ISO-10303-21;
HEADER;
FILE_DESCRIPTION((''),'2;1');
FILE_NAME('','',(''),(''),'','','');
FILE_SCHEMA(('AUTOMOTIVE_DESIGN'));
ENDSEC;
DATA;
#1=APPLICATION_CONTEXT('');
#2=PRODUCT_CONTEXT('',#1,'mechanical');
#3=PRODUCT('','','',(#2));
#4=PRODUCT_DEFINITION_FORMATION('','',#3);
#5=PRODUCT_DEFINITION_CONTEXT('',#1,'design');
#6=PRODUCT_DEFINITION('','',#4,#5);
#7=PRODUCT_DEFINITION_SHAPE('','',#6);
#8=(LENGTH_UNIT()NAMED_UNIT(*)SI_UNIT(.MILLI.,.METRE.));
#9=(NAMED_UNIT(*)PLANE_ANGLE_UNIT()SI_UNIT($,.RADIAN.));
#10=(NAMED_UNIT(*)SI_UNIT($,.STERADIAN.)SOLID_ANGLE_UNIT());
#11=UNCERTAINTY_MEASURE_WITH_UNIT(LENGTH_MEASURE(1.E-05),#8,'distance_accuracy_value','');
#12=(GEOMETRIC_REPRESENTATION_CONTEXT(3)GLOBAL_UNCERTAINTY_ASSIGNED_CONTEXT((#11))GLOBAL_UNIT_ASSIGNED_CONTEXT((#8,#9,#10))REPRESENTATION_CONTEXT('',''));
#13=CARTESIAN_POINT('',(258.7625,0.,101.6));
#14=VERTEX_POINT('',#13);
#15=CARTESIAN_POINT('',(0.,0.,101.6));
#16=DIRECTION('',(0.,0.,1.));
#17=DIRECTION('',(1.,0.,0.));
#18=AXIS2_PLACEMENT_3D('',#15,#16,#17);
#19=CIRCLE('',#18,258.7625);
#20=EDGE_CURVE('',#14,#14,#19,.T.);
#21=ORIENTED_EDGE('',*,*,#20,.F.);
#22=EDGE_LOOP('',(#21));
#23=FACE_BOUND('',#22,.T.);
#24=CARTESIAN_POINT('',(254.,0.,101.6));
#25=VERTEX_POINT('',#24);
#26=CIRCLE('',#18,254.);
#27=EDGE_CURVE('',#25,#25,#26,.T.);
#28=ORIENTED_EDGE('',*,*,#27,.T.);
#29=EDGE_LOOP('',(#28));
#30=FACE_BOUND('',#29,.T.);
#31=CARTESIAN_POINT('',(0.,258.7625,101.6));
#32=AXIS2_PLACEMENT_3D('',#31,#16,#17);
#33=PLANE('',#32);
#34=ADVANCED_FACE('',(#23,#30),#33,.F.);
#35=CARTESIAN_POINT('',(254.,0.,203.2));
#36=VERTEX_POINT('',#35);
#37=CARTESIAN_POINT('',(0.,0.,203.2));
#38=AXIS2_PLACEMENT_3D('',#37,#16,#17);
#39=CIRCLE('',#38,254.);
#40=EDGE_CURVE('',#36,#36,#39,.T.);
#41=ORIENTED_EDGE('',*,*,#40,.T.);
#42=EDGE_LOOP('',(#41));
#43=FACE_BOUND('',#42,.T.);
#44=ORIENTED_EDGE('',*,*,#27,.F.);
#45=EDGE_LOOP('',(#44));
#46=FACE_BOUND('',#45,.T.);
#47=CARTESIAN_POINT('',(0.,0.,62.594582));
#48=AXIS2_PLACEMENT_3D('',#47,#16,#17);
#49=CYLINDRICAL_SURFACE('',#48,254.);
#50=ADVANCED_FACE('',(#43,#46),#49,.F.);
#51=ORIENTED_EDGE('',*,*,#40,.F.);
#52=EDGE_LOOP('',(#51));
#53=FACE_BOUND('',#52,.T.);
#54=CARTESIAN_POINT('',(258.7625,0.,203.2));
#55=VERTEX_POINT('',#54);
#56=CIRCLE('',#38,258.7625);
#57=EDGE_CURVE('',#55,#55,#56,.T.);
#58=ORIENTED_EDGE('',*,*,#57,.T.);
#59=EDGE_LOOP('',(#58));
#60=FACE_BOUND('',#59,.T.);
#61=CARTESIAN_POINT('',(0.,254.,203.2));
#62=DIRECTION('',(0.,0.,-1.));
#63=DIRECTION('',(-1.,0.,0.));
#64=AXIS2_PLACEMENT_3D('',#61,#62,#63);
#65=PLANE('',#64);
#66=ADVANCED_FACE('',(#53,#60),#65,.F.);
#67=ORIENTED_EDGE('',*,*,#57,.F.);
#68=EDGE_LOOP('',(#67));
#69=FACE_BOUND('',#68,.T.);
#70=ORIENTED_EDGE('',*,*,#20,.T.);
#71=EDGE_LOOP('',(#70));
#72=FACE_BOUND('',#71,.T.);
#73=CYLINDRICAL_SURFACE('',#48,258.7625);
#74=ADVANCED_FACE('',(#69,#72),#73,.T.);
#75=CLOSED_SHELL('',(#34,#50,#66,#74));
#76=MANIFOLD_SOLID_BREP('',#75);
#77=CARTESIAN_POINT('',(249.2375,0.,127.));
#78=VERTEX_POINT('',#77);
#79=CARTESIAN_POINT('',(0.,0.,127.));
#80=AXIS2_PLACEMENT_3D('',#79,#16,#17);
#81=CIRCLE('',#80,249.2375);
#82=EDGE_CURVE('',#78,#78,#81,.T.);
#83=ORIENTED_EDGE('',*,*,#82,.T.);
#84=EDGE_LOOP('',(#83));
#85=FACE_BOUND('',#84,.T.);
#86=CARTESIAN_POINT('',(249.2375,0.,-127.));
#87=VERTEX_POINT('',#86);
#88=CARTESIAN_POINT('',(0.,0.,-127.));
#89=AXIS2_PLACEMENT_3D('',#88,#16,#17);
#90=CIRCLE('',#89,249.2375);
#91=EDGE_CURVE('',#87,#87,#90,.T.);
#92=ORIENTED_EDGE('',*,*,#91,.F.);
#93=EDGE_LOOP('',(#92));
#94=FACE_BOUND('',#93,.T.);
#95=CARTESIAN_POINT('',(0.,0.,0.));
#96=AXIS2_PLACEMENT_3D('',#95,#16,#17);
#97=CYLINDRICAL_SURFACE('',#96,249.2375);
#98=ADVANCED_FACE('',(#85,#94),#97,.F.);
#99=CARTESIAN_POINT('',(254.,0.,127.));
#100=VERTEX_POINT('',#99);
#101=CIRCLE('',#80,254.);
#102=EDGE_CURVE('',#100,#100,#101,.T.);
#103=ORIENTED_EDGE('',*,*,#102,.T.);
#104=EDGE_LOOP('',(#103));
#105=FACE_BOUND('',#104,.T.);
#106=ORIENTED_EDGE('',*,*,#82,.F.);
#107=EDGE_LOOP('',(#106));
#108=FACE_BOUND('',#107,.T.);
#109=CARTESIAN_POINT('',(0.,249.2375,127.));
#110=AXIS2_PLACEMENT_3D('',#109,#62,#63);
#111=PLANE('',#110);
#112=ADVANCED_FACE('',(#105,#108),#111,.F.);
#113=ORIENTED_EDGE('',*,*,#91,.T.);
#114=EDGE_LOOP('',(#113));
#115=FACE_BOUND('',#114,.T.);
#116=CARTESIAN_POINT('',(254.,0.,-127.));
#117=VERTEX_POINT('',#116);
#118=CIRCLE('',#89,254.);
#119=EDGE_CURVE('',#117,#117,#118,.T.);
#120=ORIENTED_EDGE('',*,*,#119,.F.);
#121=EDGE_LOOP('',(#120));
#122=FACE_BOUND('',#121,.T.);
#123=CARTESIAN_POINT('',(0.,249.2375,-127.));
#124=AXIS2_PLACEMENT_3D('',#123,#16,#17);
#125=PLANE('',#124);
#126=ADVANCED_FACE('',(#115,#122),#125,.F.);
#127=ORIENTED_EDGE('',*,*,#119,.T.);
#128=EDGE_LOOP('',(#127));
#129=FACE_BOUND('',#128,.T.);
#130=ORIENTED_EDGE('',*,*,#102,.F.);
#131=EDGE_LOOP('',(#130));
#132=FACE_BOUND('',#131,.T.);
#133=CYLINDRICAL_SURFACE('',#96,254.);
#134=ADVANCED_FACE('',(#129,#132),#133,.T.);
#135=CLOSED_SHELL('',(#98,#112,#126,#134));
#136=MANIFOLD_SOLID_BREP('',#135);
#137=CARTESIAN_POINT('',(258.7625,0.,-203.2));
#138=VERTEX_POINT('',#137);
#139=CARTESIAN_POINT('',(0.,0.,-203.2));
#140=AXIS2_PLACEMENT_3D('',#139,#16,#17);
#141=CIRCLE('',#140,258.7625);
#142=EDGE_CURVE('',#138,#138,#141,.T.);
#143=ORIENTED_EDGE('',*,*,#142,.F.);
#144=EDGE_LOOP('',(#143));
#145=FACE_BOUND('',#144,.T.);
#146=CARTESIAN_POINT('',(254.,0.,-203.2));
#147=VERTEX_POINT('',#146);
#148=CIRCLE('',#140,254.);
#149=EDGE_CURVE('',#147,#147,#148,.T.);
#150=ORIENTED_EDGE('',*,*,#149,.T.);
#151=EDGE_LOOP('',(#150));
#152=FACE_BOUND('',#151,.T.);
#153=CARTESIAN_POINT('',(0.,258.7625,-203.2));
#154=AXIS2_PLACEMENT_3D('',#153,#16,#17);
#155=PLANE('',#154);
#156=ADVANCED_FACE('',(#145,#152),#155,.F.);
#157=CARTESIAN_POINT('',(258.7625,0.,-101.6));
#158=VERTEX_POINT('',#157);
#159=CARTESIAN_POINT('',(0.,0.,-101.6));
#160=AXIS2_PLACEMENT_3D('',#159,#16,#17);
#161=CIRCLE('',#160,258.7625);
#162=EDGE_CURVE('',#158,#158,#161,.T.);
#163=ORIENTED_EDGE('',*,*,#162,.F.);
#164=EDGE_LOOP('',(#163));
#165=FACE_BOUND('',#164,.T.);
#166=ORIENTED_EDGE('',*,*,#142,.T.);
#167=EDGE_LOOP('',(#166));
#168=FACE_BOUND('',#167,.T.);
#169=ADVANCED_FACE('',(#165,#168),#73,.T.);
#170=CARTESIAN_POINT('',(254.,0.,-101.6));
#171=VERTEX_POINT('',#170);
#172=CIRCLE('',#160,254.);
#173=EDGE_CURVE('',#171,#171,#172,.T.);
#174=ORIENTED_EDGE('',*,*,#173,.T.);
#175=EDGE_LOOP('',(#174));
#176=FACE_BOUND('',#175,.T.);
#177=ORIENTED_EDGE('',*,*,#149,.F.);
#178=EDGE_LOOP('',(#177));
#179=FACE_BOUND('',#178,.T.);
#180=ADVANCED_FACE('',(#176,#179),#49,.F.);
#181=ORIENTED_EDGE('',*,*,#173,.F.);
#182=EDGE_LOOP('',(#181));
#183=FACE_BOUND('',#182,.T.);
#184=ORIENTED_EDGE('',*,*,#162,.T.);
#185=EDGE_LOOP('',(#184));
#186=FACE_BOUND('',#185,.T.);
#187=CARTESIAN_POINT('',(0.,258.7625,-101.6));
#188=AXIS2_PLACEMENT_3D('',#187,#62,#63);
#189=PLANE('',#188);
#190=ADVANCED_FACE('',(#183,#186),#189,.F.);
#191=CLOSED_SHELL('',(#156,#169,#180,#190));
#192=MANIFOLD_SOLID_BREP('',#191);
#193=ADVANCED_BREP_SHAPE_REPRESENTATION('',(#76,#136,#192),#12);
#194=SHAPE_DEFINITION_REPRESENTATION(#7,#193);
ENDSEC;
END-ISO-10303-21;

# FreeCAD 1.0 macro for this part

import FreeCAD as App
import Part
import Sketcher

V = App.Vector
Q = App.Units.Quantity

doc = App.newDocument("Part")
body = doc.addObject("PartDesign::Body", "Body")
body.AllowCompound = True

# Sketch on YZ plane
sketch1 = body.newObject("Sketcher::SketchObject", "Sketch")
sketch1.AttachmentSupport = (doc.getObject("YZ_Plane"), [""])
sketch1.MapMode = "FlatFace"
sketch1.addGeometry([
    Part.LineSegment(V(258.7625, 203.2, 0), V(254, 203.2, 0)),  # 0
    Part.LineSegment(V(254, 203.2, 0), V(254, 101.6, 0)),  # 1
    Part.LineSegment(V(254, 101.6, 0), V(258.7625, 101.6, 0)),  # 2
    Part.LineSegment(V(258.7625, 101.6, 0), V(258.7625, 203.2, 0)),  # 3
    Part.LineSegment(V(258.7625, -101.6, 0), V(254, -101.6, 0)),  # 4
    Part.LineSegment(V(254, -101.6, 0), V(254, -203.2, 0)),  # 5
    Part.LineSegment(V(254, -203.2, 0), V(258.7625, -203.2, 0)),  # 6
    Part.LineSegment(V(258.7625, -203.2, 0), V(258.7625, -101.6, 0)),  # 7
], False)
sketch1.addConstraint([
    Sketcher.Constraint("Coincident", 0, 2, 1, 1),
    Sketcher.Constraint("Coincident", 1, 2, 2, 1),
    Sketcher.Constraint("Coincident", 2, 2, 3, 1),
    Sketcher.Constraint("Coincident", 3, 2, 0, 1),
    Sketcher.Constraint("Coincident", 4, 2, 5, 1),
    Sketcher.Constraint("Coincident", 5, 2, 6, 1),
    Sketcher.Constraint("Coincident", 6, 2, 7, 1),
    Sketcher.Constraint("Coincident", 7, 2, 4, 1),
    Sketcher.Constraint("Horizontal", 0),
    Sketcher.Constraint("Vertical", 1),
    Sketcher.Constraint("Horizontal", 2),
    Sketcher.Constraint("Vertical", 3),
    Sketcher.Constraint("Horizontal", 4),
    Sketcher.Constraint("Vertical", 5),
    Sketcher.Constraint("Horizontal", 6),
    Sketcher.Constraint("Vertical", 7),
    Sketcher.Constraint("Symmetric", 1, 2, 4, 2, -1),
    Sketcher.Constraint("Symmetric", 3, 2, 6, 2, -1),
    Sketcher.Constraint("DistanceY", 1, 2, 1, 1, Q("4 in")),
    Sketcher.Constraint("DistanceX", -1, 1, 0, 2, Q("10 in")),
    Sketcher.Constraint("DistanceY", -1, 1, 0, 2, Q("8 in")),
    Sketcher.Constraint("DistanceX", 0, 2, 0, 1, Q("0.1875 in")),
])
revolution = body.newObject("PartDesign::Revolution", "Revolution")
revolution.Profile = sketch1
revolution.ReferenceAxis = (sketch1, ["V_Axis"])
revolution.Angle = 360
body2 = doc.addObject("PartDesign::Body", "Body001")

# Sketch on YZ plane
sketch2 = body2.newObject("Sketcher::SketchObject", "Sketch001")
sketch2.AttachmentSupport = (doc.getObject("YZ_Plane001"), [""])
sketch2.MapMode = "FlatFace"
sketch2.addGeometry([
    Part.LineSegment(V(254, 127, 0), V(249.2375, 127, 0)),
    Part.LineSegment(V(249.2375, 127, 0), V(249.2375, -127, 0)),
    Part.LineSegment(V(249.2375, -127, 0), V(254, -127, 0)),
    Part.LineSegment(V(254, -127, 0), V(254, 127, 0)),
], False)
sketch2.addConstraint([
    Sketcher.Constraint("Coincident", 0, 2, 1, 1),
    Sketcher.Constraint("Coincident", 1, 2, 2, 1),
    Sketcher.Constraint("Coincident", 2, 2, 3, 1),
    Sketcher.Constraint("Coincident", 3, 2, 0, 1),
    Sketcher.Constraint("Horizontal", 0),
    Sketcher.Constraint("Vertical", 1),
    Sketcher.Constraint("Horizontal", 2),
    Sketcher.Constraint("Vertical", 3),
    Sketcher.Constraint("DistanceY", 1, 2, 1, 1, Q("10 in")),
    Sketcher.Constraint("DistanceY", -1, 1, 0, 2, Q("5 in")),
    Sketcher.Constraint("DistanceX", -1, 1, 2, 2, Q("10 in")),
    Sketcher.Constraint("DistanceX", 0, 2, 0, 1, Q("0.1875 in")),
])
revolution2 = body2.newObject("PartDesign::Revolution", "Revolution001")
revolution2.Profile = sketch2
revolution2.ReferenceAxis = (sketch2, ["V_Axis"])
revolution2.Angle = 360

doc.recompute()
